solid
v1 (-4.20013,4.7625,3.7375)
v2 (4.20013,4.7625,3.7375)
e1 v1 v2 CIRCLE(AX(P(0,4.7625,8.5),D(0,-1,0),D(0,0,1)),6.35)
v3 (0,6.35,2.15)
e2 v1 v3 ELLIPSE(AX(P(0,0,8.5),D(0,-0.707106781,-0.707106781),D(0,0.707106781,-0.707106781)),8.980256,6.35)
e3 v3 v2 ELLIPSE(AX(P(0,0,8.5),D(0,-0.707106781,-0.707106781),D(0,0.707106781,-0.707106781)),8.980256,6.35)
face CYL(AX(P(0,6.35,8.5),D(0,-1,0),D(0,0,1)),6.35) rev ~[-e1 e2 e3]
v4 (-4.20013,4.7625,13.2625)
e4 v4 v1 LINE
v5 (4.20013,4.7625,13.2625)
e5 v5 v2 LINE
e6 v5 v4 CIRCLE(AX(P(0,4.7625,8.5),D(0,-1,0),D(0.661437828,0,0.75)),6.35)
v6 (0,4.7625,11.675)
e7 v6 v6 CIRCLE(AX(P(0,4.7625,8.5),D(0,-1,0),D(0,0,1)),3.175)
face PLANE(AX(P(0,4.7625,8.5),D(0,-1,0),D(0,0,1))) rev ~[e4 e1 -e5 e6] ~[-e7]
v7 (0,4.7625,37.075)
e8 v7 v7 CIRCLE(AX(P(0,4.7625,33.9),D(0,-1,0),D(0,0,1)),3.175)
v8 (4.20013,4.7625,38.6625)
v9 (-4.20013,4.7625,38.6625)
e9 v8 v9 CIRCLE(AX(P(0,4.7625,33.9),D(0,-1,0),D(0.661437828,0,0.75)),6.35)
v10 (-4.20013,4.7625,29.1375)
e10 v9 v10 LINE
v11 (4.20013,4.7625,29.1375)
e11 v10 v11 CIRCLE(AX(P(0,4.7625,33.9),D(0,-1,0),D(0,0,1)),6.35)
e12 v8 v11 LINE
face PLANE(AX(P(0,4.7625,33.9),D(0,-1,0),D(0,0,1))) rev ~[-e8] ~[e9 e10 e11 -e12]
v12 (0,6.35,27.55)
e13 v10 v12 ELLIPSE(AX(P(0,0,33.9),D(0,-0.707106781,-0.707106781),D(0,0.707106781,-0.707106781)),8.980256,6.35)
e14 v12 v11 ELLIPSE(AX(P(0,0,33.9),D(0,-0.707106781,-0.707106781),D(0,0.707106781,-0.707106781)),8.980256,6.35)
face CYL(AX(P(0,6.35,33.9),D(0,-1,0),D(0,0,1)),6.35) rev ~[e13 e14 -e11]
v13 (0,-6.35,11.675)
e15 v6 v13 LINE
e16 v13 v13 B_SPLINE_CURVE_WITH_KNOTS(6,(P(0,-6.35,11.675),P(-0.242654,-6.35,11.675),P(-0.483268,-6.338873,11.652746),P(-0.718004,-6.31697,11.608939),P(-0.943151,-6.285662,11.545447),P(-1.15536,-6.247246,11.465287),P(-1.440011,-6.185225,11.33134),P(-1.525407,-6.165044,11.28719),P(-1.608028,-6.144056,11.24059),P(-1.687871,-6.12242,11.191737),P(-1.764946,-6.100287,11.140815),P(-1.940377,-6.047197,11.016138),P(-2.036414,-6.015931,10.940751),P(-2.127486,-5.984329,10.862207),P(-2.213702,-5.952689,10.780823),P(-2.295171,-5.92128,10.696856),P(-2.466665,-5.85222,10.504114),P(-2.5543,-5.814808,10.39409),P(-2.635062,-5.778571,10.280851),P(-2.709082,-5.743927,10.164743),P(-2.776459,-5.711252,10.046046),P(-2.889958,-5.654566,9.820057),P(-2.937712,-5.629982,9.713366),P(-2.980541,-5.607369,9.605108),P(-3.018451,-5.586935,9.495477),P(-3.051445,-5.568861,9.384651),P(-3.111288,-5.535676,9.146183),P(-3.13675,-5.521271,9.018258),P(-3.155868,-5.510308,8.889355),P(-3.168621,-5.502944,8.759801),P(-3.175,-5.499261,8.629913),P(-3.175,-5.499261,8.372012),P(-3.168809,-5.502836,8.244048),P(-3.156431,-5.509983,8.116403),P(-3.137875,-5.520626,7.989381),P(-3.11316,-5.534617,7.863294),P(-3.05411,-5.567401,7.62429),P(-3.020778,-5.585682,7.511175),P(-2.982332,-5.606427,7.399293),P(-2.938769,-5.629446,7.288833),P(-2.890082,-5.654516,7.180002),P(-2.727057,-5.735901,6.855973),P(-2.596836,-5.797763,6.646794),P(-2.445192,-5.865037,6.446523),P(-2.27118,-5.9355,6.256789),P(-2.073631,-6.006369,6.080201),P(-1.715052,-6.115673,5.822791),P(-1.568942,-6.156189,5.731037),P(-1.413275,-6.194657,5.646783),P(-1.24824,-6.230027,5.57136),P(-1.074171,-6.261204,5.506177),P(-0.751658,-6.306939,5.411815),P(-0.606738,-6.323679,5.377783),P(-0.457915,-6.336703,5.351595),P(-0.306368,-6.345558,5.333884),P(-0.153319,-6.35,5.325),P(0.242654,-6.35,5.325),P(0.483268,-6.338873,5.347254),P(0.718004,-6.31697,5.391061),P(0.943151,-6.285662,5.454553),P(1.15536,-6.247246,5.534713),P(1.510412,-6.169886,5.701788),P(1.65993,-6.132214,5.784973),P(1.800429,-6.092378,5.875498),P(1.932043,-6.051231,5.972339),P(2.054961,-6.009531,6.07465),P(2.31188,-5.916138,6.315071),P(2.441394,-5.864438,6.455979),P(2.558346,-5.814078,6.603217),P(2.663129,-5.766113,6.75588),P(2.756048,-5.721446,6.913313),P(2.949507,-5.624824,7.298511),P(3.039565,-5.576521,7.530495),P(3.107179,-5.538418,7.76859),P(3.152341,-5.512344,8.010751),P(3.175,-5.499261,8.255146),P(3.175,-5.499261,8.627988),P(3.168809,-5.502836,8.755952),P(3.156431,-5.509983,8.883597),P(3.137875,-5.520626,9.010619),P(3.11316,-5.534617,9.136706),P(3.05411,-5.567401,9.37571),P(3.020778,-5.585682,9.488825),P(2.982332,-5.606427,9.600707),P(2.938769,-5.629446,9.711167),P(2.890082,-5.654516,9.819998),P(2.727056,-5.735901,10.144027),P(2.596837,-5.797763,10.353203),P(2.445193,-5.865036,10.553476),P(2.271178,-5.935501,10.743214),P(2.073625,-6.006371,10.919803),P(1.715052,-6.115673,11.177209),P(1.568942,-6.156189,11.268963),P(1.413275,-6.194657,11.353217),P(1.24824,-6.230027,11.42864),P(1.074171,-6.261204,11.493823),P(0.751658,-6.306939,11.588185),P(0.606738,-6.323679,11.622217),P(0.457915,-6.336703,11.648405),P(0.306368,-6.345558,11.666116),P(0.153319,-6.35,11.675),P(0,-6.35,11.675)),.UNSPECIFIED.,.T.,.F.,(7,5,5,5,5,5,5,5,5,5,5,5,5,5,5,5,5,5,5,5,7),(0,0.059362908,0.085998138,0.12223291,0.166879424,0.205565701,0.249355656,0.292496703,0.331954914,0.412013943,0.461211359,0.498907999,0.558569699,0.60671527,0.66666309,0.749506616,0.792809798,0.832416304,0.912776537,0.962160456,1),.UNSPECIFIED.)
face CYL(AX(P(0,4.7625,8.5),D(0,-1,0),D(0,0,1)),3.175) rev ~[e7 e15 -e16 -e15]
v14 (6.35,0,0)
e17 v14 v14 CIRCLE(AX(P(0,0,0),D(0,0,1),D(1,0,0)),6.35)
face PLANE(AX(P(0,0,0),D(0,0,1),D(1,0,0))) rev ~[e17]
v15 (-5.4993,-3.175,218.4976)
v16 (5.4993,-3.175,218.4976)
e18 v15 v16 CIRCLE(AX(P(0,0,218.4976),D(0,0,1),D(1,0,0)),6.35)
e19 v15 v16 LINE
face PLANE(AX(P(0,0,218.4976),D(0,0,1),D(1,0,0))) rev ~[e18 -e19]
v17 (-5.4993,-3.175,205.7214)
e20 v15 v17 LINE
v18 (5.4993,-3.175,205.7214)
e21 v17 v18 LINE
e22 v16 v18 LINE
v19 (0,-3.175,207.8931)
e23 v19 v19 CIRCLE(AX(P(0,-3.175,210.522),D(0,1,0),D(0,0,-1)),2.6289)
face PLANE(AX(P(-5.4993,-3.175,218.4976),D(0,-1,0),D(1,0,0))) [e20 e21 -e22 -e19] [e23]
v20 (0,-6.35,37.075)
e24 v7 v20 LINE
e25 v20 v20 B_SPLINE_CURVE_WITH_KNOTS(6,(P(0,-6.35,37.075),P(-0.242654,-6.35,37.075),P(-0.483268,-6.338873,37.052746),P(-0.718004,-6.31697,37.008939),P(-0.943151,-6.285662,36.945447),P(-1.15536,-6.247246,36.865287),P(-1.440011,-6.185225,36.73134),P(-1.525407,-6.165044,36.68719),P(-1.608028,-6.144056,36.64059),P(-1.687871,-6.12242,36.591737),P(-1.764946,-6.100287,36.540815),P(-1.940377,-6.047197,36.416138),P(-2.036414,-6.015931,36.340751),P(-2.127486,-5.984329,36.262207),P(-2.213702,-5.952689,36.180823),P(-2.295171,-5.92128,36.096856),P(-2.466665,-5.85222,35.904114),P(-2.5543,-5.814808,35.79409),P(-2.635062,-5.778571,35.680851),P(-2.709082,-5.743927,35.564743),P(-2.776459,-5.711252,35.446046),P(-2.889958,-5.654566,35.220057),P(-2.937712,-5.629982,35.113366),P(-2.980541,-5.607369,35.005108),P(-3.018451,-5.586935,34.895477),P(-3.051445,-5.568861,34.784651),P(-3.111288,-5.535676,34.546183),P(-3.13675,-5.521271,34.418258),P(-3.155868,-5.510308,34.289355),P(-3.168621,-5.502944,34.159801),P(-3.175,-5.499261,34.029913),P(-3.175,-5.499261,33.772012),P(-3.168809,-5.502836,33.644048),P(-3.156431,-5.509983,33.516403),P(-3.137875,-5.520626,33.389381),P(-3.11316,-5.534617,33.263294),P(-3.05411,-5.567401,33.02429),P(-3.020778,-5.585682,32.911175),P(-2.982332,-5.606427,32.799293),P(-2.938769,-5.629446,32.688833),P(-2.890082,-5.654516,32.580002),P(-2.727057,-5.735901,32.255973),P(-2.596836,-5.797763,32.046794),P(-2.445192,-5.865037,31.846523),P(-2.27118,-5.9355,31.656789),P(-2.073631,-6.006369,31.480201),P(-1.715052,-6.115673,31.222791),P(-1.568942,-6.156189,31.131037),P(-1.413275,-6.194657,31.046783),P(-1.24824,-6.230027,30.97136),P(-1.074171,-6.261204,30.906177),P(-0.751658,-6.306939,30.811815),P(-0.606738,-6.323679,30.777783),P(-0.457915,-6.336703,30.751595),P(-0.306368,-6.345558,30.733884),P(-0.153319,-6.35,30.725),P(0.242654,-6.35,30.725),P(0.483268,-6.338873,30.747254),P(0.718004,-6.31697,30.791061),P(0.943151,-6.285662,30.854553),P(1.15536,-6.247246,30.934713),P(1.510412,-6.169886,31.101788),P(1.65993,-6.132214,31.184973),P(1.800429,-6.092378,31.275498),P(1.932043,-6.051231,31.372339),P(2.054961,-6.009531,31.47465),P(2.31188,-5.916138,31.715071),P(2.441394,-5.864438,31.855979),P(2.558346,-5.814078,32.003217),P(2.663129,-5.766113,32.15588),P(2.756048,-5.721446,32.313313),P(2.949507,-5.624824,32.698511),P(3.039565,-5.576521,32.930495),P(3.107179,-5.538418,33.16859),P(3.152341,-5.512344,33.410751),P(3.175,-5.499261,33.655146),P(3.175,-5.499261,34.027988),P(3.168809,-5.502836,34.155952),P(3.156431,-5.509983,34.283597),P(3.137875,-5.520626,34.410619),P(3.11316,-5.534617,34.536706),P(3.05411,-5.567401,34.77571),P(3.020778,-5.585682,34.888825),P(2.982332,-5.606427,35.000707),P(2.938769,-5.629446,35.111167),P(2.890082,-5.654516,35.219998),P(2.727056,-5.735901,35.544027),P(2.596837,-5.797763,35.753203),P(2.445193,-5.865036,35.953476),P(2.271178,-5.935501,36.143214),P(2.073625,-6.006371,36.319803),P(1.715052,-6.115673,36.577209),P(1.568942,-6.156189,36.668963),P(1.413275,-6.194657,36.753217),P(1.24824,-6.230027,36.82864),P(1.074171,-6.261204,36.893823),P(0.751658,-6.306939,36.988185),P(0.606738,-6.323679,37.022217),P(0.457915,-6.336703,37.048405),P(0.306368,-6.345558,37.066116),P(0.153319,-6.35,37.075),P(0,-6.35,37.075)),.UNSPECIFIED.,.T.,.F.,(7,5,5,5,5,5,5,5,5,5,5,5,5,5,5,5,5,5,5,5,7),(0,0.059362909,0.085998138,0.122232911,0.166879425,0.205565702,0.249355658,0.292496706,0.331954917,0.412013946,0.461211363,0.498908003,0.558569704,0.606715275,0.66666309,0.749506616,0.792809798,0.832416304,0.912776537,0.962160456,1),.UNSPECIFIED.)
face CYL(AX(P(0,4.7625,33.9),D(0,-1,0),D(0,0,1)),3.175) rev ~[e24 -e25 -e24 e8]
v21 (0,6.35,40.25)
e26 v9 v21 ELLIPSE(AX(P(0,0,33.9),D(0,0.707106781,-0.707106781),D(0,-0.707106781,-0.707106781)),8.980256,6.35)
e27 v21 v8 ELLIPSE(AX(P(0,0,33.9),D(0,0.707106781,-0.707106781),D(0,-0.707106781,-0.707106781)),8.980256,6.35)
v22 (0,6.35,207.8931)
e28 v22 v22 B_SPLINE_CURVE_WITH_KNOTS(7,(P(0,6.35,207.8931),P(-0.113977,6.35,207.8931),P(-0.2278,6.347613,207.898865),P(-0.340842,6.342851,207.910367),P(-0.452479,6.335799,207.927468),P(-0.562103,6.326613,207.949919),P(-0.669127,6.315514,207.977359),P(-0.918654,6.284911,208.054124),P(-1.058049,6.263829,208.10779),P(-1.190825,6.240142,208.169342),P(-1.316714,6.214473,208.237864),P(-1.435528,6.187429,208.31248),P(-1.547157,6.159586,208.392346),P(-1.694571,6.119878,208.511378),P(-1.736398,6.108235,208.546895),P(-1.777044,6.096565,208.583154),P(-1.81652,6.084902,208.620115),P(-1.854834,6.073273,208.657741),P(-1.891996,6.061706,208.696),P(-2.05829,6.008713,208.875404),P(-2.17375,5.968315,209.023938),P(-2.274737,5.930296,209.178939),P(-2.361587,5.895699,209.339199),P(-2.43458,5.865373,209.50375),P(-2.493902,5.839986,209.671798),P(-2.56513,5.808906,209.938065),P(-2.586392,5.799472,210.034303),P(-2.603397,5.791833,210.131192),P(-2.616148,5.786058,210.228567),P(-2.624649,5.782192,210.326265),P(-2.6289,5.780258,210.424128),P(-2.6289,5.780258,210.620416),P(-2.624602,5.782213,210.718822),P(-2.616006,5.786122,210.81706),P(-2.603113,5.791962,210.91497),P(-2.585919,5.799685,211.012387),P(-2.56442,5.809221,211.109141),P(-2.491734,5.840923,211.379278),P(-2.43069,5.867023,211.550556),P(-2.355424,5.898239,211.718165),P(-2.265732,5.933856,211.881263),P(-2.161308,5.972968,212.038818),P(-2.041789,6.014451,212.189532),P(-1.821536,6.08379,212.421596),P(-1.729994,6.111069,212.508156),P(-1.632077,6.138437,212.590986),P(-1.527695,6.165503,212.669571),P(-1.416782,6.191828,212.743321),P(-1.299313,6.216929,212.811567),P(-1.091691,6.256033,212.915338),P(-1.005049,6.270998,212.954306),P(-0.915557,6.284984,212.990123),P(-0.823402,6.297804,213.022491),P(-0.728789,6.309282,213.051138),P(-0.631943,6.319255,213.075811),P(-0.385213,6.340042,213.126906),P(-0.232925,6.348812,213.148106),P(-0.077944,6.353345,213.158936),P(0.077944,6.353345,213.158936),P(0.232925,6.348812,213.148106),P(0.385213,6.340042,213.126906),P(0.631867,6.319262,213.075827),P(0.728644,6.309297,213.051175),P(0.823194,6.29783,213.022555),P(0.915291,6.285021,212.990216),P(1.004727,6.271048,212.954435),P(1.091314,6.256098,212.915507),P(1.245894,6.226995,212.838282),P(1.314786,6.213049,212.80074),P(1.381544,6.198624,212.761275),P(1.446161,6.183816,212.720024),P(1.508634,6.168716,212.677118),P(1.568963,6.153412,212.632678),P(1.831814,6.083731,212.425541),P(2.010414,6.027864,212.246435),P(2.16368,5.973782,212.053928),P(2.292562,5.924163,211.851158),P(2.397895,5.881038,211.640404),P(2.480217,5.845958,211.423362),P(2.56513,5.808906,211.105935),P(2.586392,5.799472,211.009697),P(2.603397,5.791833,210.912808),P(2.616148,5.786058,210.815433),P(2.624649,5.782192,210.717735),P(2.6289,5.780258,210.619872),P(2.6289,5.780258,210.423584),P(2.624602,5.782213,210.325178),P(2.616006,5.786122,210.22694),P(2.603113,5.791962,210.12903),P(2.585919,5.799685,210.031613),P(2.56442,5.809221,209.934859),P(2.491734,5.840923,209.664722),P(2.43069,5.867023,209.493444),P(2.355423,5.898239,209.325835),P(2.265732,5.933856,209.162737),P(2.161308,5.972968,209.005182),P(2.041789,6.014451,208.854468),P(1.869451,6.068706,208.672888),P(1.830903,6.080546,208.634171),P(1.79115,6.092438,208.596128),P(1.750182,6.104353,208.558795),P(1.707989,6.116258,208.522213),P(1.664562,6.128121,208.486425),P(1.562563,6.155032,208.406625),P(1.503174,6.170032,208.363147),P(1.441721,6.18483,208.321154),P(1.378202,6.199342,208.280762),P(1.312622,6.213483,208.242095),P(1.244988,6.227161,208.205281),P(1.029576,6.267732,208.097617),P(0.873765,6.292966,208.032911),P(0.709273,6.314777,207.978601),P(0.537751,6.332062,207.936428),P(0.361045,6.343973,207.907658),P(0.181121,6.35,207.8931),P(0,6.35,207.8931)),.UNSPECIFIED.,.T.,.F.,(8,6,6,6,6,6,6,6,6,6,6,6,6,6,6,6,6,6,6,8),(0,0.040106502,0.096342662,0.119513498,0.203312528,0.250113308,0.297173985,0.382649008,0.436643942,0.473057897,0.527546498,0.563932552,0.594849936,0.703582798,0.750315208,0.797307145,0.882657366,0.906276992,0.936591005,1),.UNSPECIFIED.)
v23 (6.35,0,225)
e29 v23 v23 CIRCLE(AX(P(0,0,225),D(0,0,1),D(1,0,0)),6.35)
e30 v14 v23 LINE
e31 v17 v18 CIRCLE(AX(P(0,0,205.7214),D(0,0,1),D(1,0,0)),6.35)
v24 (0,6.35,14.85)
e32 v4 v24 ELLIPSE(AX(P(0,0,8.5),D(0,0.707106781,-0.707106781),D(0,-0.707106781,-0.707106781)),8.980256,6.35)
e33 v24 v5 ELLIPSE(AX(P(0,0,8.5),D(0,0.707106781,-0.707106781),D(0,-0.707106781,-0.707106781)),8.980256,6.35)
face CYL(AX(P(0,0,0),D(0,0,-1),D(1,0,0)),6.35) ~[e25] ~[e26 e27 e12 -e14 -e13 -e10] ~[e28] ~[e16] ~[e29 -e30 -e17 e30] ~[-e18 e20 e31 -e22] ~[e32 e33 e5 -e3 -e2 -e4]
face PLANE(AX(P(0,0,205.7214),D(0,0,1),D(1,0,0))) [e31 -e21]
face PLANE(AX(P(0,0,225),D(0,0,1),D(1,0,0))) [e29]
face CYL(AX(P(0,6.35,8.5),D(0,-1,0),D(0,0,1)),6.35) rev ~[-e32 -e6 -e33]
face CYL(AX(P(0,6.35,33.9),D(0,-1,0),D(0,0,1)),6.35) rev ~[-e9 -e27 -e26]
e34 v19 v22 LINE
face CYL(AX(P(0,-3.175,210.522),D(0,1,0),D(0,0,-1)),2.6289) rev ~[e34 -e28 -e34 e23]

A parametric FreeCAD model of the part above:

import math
import FreeCAD as App
import Part
import Sketcher
from FreeCAD import Vector
Q = App.Units.Quantity

doc = App.newDocument("Part")
body = doc.addObject("PartDesign::Body", "Body")

# Sketch on XY plane
sketch1 = body.newObject("Sketcher::SketchObject", "Sketch")
sketch1.AttachmentSupport = (doc.getObject("XY_Plane"), [""])
sketch1.MapMode = "FlatFace"
sketch1.addGeometry(Part.Circle(Vector(0, 0, 0), Vector(0, 0, 1), 6), False)
sketch1.addConstraint([
    Sketcher.Constraint("Coincident", 0, 3, -1, 1),
    Sketcher.Constraint("Diameter", 0, Q("0.5 in")),
])
pad1 = body.newObject("PartDesign::Pad", "Pad")
pad1.Profile = sketch1
pad1.Length = 225

# Sketch on XY plane
sketch2 = body.newObject("Sketcher::SketchObject", "Sketch001")
sketch2.AttachmentSupport = (doc.getObject("XY_Plane"), [""])
sketch2.MapMode = "FlatFace"
sketch2.AttachmentOffset = App.Placement(Vector(0, 0, 218.4976), App.Rotation())
sketch2.addGeometry([
    Part.LineSegment(Vector(5, -3, 0), Vector(-5, -3, 0)),
    Part.ArcOfCircle(Part.Circle(Vector(0, 0, 0), Vector(0, 0, 1), 6), math.radians(-150), math.radians(-30)),
], False)
sketch2.addConstraint([
    Sketcher.Constraint("Coincident", 0, 1, 1, 2),
    Sketcher.Constraint("Coincident", 1, 1, 0, 2),
    Sketcher.Constraint("Horizontal", 0),
    Sketcher.Constraint("Coincident", 1, 3, -1, 1),
    Sketcher.Constraint("Radius", 1, Q("0.25 in")),
    Sketcher.Constraint("DistanceY", 0, 1, -1, 1, Q("0.125 in")),
])
pocket1 = body.newObject("PartDesign::Pocket", "Pocket")
pocket1.Profile = sketch2
pocket1.Length = Q("0.503 in")

# Sketch on XZ plane
sketch3 = body.newObject("Sketcher::SketchObject", "Sketch002")
sketch3.AttachmentSupport = (doc.getObject("XZ_Plane"), [""])
sketch3.MapMode = "FlatFace"
sketch3.AttachmentOffset = App.Placement(Vector(0, 0, 0.125 * 25.4), App.Rotation())
sketch3.addGeometry(Part.Circle(Vector(0, 210.5, 0), Vector(0, 0, 1), 2.6), False)
sketch3.addConstraint([
    Sketcher.Constraint("PointOnObject", 0, 3, -2),
    Sketcher.Constraint("Diameter", 0, Q("0.207 in")),
    Sketcher.Constraint("DistanceY", -1, 1, 0, 3, 210.522),
])
doc.recompute()
hole = body.newObject("PartDesign::Hole", "Hole")
hole.Profile = sketch3
hole.ThreadType = "None"
hole.Diameter = Q("0.207 in")
hole.DepthType = "ThroughAll"

# Sketch on XZ plane
sketch4 = body.newObject("Sketcher::SketchObject", "Sketch003")
sketch4.AttachmentSupport = (doc.getObject("XZ_Plane"), [""])
sketch4.MapMode = "FlatFace"
sketch4.AttachmentOffset = App.Placement(Vector(0, 0, -0.25 * 25.4), App.Rotation())
sketch4.addGeometry([
    Part.Circle(Vector(0, 8.5, 0), Vector(0, 0, 1), 3.2),
    Part.Circle(Vector(0, 33.9, 0), Vector(0, 0, 1), 3.2),
], False)
sketch4.addConstraint([
    Sketcher.Constraint("Equal", 0, 1),
    Sketcher.Constraint("PointOnObject", 0, 3, -2),
    Sketcher.Constraint("PointOnObject", 1, 3, -2),
    Sketcher.Constraint("Diameter", 0, Q("0.25 in")),
    Sketcher.Constraint("DistanceY", 0, 3, 1, 3, Q("1 in")),
    Sketcher.Constraint("DistanceY", -1, 1, 0, 3, 8.5),
])
doc.recompute()
hole2 = body.newObject("PartDesign::Hole", "Hole001")
hole2.Profile = sketch4
hole2.ThreadType = "None"
hole2.Diameter = Q("0.25 in")
hole2.DepthType = "ThroughAll"
hole2.HoleCutType = "Counterbore"
hole2.HoleCutDiameter = Q("0.5 in")
hole2.HoleCutDepth = Q("0.0625 in")
hole2.Reversed = True

doc.recompute()
